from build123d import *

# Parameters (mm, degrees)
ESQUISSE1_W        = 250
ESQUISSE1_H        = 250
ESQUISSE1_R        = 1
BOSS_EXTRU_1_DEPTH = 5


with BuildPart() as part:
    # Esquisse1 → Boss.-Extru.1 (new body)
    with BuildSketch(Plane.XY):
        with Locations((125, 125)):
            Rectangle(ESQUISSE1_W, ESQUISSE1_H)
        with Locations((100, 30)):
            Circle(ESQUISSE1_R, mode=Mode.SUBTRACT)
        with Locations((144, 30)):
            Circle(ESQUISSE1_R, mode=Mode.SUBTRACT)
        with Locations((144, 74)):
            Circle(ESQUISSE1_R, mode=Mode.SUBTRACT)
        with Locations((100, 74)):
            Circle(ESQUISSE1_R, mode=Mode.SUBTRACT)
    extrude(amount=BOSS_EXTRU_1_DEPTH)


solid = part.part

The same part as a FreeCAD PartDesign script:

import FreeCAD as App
import Part
import Sketcher

V = App.Vector

doc = App.newDocument("Part")
params = doc.addObject("Spreadsheet::Sheet", "Params")
for row, (alias, value) in enumerate([
    ("sketch1_diameter", "2 mm"),
    ("sketch1_width", "250 mm"),
    ("pad1_length", "5 mm"),
], start=1):
    params.set(f"A{row}", alias)
    params.set(f"B{row}", "=" + value)
    params.setAlias(f"B{row}", alias)

body = doc.addObject("PartDesign::Body", "Body")

# Sketch on XY plane
sketch1 = body.newObject("Sketcher::SketchObject", "Sketch")
sketch1.AttachmentSupport = (doc.getObject("XY_Plane"), [""])
sketch1.MapMode = "FlatFace"
sketch1.addGeometry(Part.LineSegment(V(0, 250, 0), V(0, 0, 0)), False)
sketch1.addGeometry(Part.LineSegment(V(0, 0, 0), V(250, 0, 0)), False)
sketch1.addGeometry(Part.LineSegment(V(250, 0, 0), V(250, 250, 0)), False)
sketch1.addGeometry(Part.LineSegment(V(250, 250, 0), V(0, 250, 0)), False)
sketch1.addGeometry(Part.Circle(V(100, 30, 0), V(0, 0, 1), 1), False)
sketch1.addGeometry(Part.Circle(V(144, 30, 0), V(0, 0, 1), 1), False)
sketch1.addGeometry(Part.Circle(V(100, 74, 0), V(0, 0, 1), 1), False)
sketch1.addGeometry(Part.Circle(V(144, 74, 0), V(0, 0, 1), 1), False)
sketch1.addConstraint(Sketcher.Constraint("Coincident", 0, 2, 1, 1))
sketch1.addConstraint(Sketcher.Constraint("Coincident", 1, 2, 2, 1))
sketch1.addConstraint(Sketcher.Constraint("Coincident", 2, 2, 3, 1))
sketch1.addConstraint(Sketcher.Constraint("Coincident", 3, 2, 0, 1))
sketch1.addConstraint(Sketcher.Constraint("Vertical", 0))
sketch1.addConstraint(Sketcher.Constraint("Horizontal", 1))
sketch1.addConstraint(Sketcher.Constraint("Vertical", 2))
sketch1.addConstraint(Sketcher.Constraint("Horizontal", 3))
sketch1.addConstraint(Sketcher.Constraint("Coincident", 0, 2, -1, 1))
sketch1.addConstraint(Sketcher.Constraint("Equal", 4, 5))
sketch1.addConstraint(Sketcher.Constraint("Equal", 5, 6))
sketch1.addConstraint(Sketcher.Constraint("Equal", 6, 7))
sketch1.addConstraint(Sketcher.Constraint("Horizontal", 4, 3, 5, 3))
sketch1.addConstraint(Sketcher.Constraint("Horizontal", 6, 3, 7, 3))
sketch1.addConstraint(Sketcher.Constraint("Vertical", 4, 3, 6, 3))
sketch1.addConstraint(Sketcher.Constraint("Vertical", 5, 3, 7, 3))
sketch1.addConstraint(Sketcher.Constraint("Equal", 3, 0))
sketch1.addConstraint(Sketcher.Constraint("Diameter", 4, 2.0))
sketch1.addConstraint(Sketcher.Constraint("DistanceX", 1, 1, 1, 2, 250.0))
sketch1.addConstraint(Sketcher.Constraint("DistanceX", -1, 1, 4, 3, 100.0))
sketch1.addConstraint(Sketcher.Constraint("DistanceY", -1, 1, 4, 3, 30.0))
sketch1.addConstraint(Sketcher.Constraint("DistanceX", -1, 1, 5, 3, 144.0))
sketch1.addConstraint(Sketcher.Constraint("DistanceY", -1, 1, 6, 3, 74.0))
sketch1.setExpression("Constraints[17]", "Params.sketch1_diameter")
sketch1.setExpression("Constraints[18]", "Params.sketch1_width")
pad1 = body.newObject("PartDesign::Pad", "Pad")
pad1.Profile = sketch1
pad1.setExpression("Length", "Params.pad1_length")

doc.recompute()
